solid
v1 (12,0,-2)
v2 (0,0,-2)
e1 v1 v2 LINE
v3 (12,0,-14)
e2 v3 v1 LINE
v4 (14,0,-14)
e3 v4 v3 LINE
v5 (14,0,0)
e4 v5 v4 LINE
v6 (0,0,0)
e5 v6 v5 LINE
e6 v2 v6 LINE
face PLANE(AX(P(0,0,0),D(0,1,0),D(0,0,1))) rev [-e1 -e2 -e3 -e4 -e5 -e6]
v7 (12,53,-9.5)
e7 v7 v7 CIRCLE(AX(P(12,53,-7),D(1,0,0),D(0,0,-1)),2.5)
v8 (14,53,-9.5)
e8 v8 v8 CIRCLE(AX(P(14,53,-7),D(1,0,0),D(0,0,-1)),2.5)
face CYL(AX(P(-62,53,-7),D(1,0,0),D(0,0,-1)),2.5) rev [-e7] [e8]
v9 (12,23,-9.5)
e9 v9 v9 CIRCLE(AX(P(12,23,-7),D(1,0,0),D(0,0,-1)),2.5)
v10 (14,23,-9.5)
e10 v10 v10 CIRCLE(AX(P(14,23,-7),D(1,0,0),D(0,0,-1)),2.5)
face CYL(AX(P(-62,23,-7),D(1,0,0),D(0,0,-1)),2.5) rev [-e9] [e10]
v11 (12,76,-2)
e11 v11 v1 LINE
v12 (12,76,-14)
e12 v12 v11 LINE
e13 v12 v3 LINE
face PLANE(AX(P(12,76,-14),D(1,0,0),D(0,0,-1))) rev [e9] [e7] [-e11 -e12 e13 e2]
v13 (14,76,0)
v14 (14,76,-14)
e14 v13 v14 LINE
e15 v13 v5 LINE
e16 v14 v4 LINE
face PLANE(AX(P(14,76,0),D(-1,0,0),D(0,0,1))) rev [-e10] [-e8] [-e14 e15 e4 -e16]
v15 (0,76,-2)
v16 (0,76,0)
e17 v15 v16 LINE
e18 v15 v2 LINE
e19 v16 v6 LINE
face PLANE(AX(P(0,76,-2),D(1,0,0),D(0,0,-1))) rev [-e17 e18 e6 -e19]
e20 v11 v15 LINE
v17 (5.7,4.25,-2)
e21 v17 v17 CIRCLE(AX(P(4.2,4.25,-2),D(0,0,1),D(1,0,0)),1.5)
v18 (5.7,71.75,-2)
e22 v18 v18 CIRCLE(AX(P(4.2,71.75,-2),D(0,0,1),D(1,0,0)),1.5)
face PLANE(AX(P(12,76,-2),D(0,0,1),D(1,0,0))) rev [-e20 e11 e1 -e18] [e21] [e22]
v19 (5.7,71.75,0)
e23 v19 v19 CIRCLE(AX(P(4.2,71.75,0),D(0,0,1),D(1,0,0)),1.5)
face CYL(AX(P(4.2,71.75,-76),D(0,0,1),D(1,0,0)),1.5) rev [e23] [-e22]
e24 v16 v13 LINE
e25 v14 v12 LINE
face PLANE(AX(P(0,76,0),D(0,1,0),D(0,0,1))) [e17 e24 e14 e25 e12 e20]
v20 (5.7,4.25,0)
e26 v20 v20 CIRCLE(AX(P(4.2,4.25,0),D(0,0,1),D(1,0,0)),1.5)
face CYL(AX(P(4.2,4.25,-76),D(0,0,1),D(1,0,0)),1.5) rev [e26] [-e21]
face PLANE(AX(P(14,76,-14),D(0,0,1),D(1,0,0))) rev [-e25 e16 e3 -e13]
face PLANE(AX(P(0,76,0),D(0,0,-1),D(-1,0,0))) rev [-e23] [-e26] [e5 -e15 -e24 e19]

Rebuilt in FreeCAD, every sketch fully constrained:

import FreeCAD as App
import Part
import Sketcher


def add_polygon(sketch, points):
    """Adds a closed chain of lines whose ends are joined by coincident constraints."""
    first, n = sketch.GeometryCount, len(points)
    for a, b in zip(points, points[1:] + points[:1]):
        sketch.addGeometry(Part.LineSegment(App.Vector(*a, 0), App.Vector(*b, 0)), False)
    for i in range(n):
        sketch.addConstraint(Sketcher.Constraint("Coincident", first + i, 2, first + (i + 1) % n, 1))

doc = App.newDocument("Part")
body = doc.addObject("PartDesign::Body", "Body")

# Sketch on XZ plane
sketch1 = body.newObject("Sketcher::SketchObject", "Sketch")
sketch1.AttachmentSupport = (doc.getObject("XZ_Plane"), [""])
sketch1.MapMode = "FlatFace"
add_polygon(sketch1, [(0, 0), (14, 0), (14, -14), (12, -14), (12, -2), (0, -2)])  # lines 0-5
sketch1.addConstraint([
    Sketcher.Constraint("Horizontal", 0),
    Sketcher.Constraint("Vertical", 1),
    Sketcher.Constraint("Horizontal", 2),
    Sketcher.Constraint("Vertical", 3),
    Sketcher.Constraint("Horizontal", 4),
    Sketcher.Constraint("Vertical", 5),
    Sketcher.Constraint("Coincident", 5, 2, -1, 1),
    Sketcher.Constraint("Equal", 0, 1),
    Sketcher.Constraint("Equal", 4, 3),
    Sketcher.Constraint("DistanceX", 0, 1, 0, 2, 14.0),
    Sketcher.Constraint("DistanceX", 2, 2, 2, 1, 2.0),
])
pad1 = body.newObject("PartDesign::Pad", "Pad")
pad1.Profile = sketch1
pad1.Length = 76
pad1.Reversed = True

# Sketch on XY plane
sketch2 = body.newObject("Sketcher::SketchObject", "Sketch001")
sketch2.AttachmentSupport = (doc.getObject("XY_Plane"), [""])
sketch2.MapMode = "FlatFace"
sketch2.addGeometry([
    Part.Circle(App.Vector(4.2, 4.2, 0), App.Vector(0, 0, 1), 1.5),
    Part.Circle(App.Vector(4.2, 71.8, 0), App.Vector(0, 0, 1), 1.5),
], False)
sketch2.addConstraint([
    Sketcher.Constraint("Equal", 0, 1),
    Sketcher.Constraint("Vertical", 0, 3, 1, 3),
    Sketcher.Constraint("Diameter", 0, 3.0),
    Sketcher.Constraint("DistanceX", -1, 1, 0, 3, 4.2),
    Sketcher.Constraint("DistanceY", 0, 3, 1, 3, 67.5),
    Sketcher.Constraint("DistanceY", -1, 1, 0, 3, 4.25),
])
pocket1 = body.newObject("PartDesign::Pocket", "Pocket")
pocket1.Profile = sketch2
pocket1.Length = 76

# Sketch on YZ plane
sketch3 = body.newObject("Sketcher::SketchObject", "Sketch002")
sketch3.AttachmentSupport = (doc.getObject("YZ_Plane"), [""])
sketch3.MapMode = "FlatFace"
sketch3.AttachmentOffset = App.Placement(App.Vector(0, 0, 14), App.Rotation())
sketch3.addGeometry([
    Part.Circle(App.Vector(23, -7, 0), App.Vector(0, 0, 1), 2.5),
    Part.Circle(App.Vector(53, -7, 0), App.Vector(0, 0, 1), 2.5),
], False)
sketch3.addConstraint([
    Sketcher.Constraint("Equal", 0, 1),
    Sketcher.Constraint("Horizontal", 0, 3, 1, 3),
    Sketcher.Constraint("Diameter", 0, 5.0),
    Sketcher.Constraint("DistanceX", -1, 1, 0, 3, 23.0),
    Sketcher.Constraint("DistanceY", 0, 3, -1, 1, 7.0),
    Sketcher.Constraint("DistanceX", -1, 1, 1, 3, 53.0),
])
pocket2 = body.newObject("PartDesign::Pocket", "Pocket001")
pocket2.Profile = sketch3
pocket2.Length = 76

doc.recompute()
